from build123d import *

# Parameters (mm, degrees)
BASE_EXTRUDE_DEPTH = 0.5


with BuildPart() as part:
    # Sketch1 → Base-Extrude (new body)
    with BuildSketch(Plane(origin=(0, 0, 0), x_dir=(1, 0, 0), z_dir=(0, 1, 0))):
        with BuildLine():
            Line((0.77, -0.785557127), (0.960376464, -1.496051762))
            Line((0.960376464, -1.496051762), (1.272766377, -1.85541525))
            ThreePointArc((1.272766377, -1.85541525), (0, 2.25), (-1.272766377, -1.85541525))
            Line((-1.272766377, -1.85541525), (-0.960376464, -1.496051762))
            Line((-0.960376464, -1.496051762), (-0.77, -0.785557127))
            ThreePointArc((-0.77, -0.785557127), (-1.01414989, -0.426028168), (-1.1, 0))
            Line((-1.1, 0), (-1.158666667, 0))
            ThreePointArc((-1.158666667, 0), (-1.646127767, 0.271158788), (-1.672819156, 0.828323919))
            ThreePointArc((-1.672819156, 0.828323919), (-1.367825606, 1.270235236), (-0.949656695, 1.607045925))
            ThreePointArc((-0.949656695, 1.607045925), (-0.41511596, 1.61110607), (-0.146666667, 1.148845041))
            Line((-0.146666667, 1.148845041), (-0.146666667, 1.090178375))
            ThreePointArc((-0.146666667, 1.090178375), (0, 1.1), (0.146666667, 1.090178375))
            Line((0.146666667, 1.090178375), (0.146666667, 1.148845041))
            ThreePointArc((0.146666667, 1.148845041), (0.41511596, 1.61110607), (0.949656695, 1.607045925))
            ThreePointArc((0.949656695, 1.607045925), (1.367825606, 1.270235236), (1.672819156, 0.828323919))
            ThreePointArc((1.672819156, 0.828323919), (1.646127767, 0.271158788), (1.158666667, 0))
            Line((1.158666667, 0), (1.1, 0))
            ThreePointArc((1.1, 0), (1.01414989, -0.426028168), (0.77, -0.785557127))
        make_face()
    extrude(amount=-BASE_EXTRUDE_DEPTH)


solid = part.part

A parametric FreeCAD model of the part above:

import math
import FreeCAD as App
import Part
import Sketcher
from FreeCAD import Vector
Q = App.Units.Quantity

doc = App.newDocument("Part")
body = doc.addObject("PartDesign::Body", "Body")

sketch1 = body.newObject("Sketcher::SketchObject", "Sketch")
sketch1.AttachmentSupport = (doc.getObject("XZ_Plane"), [""])
sketch1.MapMode = "FlatFace"
sketch1.addGeometry([
    Part.LineSegment(Vector(0.77, 0.79, 0), Vector(0.96, 1.5, 0)),
    Part.LineSegment(Vector(0.96, 1.5, 0), Vector(1.27, 1.86, 0)),
    Part.ArcOfCircle(Part.Circle(Vector(0, 0, 0), Vector(0, 0, 1), 2.25), math.radians(124), math.radians(416)),
    Part.LineSegment(Vector(-1.27, 1.86, 0), Vector(-0.96, 1.5, 0)),
    Part.LineSegment(Vector(-0.96, 1.5, 0), Vector(-0.77, 0.79, 0)),
    Part.ArcOfCircle(Part.Circle(Vector(0, 0, 0), Vector(0, 0, 1), 1.1), math.radians(134), math.radians(180)),
    Part.LineSegment(Vector(-1.1, 0, 0), Vector(-1.16, 0, 0)),
    Part.ArcOfCircle(Part.Circle(Vector(-1.16, -0.57, 0), Vector(0, 0, 1), 0.57), math.radians(90), math.radians(206)),
    Part.ArcOfCircle(Part.Circle(Vector(0, 0, 0), Vector(0, 0, 1), 1.87), math.radians(-154), math.radians(-121)),
    Part.ArcOfCircle(Part.Circle(Vector(-0.68, -1.15, 0), Vector(0, 0, 1), 0.53), math.radians(-121), math.radians(0)),
    Part.LineSegment(Vector(-0.15, -1.15, 0), Vector(-0.15, -1.09, 0)),
    Part.ArcOfCircle(Part.Circle(Vector(0, 0, 0), Vector(0, 0, 1), 1.1), math.radians(-97.66), math.radians(-82.34)),
    Part.LineSegment(Vector(0.15, -1.09, 0), Vector(0.15, -1.15, 0)),
    Part.ArcOfCircle(Part.Circle(Vector(0.68, -1.15, 0), Vector(0, 0, 1), 0.53), math.radians(180), math.radians(301)),
    Part.ArcOfCircle(Part.Circle(Vector(0, 0, 0), Vector(0, 0, 1), 1.87), math.radians(-59), math.radians(-26)),
    Part.ArcOfCircle(Part.Circle(Vector(1.16, -0.57, 0), Vector(0, 0, 1), 0.57), math.radians(-26), math.radians(90)),
    Part.LineSegment(Vector(1.16, 0, 0), Vector(1.1, 0, 0)),
    Part.ArcOfCircle(Part.Circle(Vector(0, 0, 0), Vector(0, 0, 1), 1.1), math.radians(0), math.radians(46)),
], False)
sketch1.addConstraint([
    Sketcher.Constraint("Coincident", 0, 2, 1, 1),
    Sketcher.Constraint("Coincident", 1, 2, 2, 2),
    Sketcher.Constraint("Coincident", 2, 1, 3, 1),
    Sketcher.Constraint("Coincident", 3, 2, 4, 1),
    Sketcher.Constraint("Coincident", 4, 2, 5, 1),
    Sketcher.Constraint("Coincident", 5, 2, 6, 1),
    Sketcher.Constraint("Tangent", 6, 2, 7, 1),
    Sketcher.Constraint("Tangent", 7, 2, 8, 1),
    Sketcher.Constraint("Tangent", 8, 2, 9, 1),
    Sketcher.Constraint("Tangent", 9, 2, 10, 1),
    Sketcher.Constraint("Coincident", 10, 2, 11, 1),
    Sketcher.Constraint("Coincident", 11, 2, 12, 1),
    Sketcher.Constraint("Tangent", 12, 2, 13, 1),
    Sketcher.Constraint("Tangent", 13, 2, 14, 1),
    Sketcher.Constraint("Tangent", 14, 2, 15, 1),
    Sketcher.Constraint("Tangent", 15, 2, 16, 1),
    Sketcher.Constraint("Coincident", 16, 2, 17, 1),
    Sketcher.Constraint("Coincident", 17, 2, 0, 1),
    Sketcher.Constraint("Horizontal", 6),
    Sketcher.Constraint("Vertical", 10),
    Sketcher.Constraint("Vertical", 12),
    Sketcher.Constraint("Horizontal", 16),
    Sketcher.Constraint("Coincident", 2, 3, -1, 1),
    Sketcher.Constraint("Coincident", 5, 3, -1, 1),
    Sketcher.Constraint("Coincident", 8, 3, -1, 1),
    Sketcher.Constraint("Coincident", 11, 3, -1, 1),
    Sketcher.Constraint("Coincident", 14, 3, -1, 1),
    Sketcher.Constraint("Coincident", 17, 3, -1, 1),
    Sketcher.Constraint("Equal", 5, 11),
    Sketcher.Constraint("Equal", 9, 13),
    Sketcher.Constraint("Equal", 8, 14),
    Sketcher.Constraint("Equal", 7, 15),
    Sketcher.Constraint("Equal", 11, 17),
    Sketcher.Constraint("Symmetric", 6, 2, 15, 2, -1, 1),
    Sketcher.Constraint("Symmetric", 0, 2, 3, 2, -2),
    Sketcher.Constraint("Horizontal", 9, 3, 13, 3),
    Sketcher.Constraint("Horizontal", 1, 2, 2, 1),
    Sketcher.Constraint("Horizontal", 4, 2, 17, 2),
    Sketcher.Constraint("Equal", 16, 10),
    Sketcher.Constraint("Radius", 5, 1.1),
    Sketcher.Constraint("Angle", 0, Q("75 deg")),
    Sketcher.Constraint("Angle", 1, Q("49 deg")),
    Sketcher.Constraint("Radius", 2, 2.25),
    Sketcher.Constraint("DistanceX", 4, 2, -1, 1, 0.77),
    Sketcher.Constraint("Radius", 7, 0.573733),
    Sketcher.Constraint("Radius", 8, 1.866667),
    Sketcher.Constraint("Radius", 9, 0.532224),
    Sketcher.Constraint("Distance", 0, 0.735558),
])
pad1 = body.newObject("PartDesign::Pad", "Pad")
pad1.Profile = sketch1
pad1.Length = 0.5

doc.recompute()
